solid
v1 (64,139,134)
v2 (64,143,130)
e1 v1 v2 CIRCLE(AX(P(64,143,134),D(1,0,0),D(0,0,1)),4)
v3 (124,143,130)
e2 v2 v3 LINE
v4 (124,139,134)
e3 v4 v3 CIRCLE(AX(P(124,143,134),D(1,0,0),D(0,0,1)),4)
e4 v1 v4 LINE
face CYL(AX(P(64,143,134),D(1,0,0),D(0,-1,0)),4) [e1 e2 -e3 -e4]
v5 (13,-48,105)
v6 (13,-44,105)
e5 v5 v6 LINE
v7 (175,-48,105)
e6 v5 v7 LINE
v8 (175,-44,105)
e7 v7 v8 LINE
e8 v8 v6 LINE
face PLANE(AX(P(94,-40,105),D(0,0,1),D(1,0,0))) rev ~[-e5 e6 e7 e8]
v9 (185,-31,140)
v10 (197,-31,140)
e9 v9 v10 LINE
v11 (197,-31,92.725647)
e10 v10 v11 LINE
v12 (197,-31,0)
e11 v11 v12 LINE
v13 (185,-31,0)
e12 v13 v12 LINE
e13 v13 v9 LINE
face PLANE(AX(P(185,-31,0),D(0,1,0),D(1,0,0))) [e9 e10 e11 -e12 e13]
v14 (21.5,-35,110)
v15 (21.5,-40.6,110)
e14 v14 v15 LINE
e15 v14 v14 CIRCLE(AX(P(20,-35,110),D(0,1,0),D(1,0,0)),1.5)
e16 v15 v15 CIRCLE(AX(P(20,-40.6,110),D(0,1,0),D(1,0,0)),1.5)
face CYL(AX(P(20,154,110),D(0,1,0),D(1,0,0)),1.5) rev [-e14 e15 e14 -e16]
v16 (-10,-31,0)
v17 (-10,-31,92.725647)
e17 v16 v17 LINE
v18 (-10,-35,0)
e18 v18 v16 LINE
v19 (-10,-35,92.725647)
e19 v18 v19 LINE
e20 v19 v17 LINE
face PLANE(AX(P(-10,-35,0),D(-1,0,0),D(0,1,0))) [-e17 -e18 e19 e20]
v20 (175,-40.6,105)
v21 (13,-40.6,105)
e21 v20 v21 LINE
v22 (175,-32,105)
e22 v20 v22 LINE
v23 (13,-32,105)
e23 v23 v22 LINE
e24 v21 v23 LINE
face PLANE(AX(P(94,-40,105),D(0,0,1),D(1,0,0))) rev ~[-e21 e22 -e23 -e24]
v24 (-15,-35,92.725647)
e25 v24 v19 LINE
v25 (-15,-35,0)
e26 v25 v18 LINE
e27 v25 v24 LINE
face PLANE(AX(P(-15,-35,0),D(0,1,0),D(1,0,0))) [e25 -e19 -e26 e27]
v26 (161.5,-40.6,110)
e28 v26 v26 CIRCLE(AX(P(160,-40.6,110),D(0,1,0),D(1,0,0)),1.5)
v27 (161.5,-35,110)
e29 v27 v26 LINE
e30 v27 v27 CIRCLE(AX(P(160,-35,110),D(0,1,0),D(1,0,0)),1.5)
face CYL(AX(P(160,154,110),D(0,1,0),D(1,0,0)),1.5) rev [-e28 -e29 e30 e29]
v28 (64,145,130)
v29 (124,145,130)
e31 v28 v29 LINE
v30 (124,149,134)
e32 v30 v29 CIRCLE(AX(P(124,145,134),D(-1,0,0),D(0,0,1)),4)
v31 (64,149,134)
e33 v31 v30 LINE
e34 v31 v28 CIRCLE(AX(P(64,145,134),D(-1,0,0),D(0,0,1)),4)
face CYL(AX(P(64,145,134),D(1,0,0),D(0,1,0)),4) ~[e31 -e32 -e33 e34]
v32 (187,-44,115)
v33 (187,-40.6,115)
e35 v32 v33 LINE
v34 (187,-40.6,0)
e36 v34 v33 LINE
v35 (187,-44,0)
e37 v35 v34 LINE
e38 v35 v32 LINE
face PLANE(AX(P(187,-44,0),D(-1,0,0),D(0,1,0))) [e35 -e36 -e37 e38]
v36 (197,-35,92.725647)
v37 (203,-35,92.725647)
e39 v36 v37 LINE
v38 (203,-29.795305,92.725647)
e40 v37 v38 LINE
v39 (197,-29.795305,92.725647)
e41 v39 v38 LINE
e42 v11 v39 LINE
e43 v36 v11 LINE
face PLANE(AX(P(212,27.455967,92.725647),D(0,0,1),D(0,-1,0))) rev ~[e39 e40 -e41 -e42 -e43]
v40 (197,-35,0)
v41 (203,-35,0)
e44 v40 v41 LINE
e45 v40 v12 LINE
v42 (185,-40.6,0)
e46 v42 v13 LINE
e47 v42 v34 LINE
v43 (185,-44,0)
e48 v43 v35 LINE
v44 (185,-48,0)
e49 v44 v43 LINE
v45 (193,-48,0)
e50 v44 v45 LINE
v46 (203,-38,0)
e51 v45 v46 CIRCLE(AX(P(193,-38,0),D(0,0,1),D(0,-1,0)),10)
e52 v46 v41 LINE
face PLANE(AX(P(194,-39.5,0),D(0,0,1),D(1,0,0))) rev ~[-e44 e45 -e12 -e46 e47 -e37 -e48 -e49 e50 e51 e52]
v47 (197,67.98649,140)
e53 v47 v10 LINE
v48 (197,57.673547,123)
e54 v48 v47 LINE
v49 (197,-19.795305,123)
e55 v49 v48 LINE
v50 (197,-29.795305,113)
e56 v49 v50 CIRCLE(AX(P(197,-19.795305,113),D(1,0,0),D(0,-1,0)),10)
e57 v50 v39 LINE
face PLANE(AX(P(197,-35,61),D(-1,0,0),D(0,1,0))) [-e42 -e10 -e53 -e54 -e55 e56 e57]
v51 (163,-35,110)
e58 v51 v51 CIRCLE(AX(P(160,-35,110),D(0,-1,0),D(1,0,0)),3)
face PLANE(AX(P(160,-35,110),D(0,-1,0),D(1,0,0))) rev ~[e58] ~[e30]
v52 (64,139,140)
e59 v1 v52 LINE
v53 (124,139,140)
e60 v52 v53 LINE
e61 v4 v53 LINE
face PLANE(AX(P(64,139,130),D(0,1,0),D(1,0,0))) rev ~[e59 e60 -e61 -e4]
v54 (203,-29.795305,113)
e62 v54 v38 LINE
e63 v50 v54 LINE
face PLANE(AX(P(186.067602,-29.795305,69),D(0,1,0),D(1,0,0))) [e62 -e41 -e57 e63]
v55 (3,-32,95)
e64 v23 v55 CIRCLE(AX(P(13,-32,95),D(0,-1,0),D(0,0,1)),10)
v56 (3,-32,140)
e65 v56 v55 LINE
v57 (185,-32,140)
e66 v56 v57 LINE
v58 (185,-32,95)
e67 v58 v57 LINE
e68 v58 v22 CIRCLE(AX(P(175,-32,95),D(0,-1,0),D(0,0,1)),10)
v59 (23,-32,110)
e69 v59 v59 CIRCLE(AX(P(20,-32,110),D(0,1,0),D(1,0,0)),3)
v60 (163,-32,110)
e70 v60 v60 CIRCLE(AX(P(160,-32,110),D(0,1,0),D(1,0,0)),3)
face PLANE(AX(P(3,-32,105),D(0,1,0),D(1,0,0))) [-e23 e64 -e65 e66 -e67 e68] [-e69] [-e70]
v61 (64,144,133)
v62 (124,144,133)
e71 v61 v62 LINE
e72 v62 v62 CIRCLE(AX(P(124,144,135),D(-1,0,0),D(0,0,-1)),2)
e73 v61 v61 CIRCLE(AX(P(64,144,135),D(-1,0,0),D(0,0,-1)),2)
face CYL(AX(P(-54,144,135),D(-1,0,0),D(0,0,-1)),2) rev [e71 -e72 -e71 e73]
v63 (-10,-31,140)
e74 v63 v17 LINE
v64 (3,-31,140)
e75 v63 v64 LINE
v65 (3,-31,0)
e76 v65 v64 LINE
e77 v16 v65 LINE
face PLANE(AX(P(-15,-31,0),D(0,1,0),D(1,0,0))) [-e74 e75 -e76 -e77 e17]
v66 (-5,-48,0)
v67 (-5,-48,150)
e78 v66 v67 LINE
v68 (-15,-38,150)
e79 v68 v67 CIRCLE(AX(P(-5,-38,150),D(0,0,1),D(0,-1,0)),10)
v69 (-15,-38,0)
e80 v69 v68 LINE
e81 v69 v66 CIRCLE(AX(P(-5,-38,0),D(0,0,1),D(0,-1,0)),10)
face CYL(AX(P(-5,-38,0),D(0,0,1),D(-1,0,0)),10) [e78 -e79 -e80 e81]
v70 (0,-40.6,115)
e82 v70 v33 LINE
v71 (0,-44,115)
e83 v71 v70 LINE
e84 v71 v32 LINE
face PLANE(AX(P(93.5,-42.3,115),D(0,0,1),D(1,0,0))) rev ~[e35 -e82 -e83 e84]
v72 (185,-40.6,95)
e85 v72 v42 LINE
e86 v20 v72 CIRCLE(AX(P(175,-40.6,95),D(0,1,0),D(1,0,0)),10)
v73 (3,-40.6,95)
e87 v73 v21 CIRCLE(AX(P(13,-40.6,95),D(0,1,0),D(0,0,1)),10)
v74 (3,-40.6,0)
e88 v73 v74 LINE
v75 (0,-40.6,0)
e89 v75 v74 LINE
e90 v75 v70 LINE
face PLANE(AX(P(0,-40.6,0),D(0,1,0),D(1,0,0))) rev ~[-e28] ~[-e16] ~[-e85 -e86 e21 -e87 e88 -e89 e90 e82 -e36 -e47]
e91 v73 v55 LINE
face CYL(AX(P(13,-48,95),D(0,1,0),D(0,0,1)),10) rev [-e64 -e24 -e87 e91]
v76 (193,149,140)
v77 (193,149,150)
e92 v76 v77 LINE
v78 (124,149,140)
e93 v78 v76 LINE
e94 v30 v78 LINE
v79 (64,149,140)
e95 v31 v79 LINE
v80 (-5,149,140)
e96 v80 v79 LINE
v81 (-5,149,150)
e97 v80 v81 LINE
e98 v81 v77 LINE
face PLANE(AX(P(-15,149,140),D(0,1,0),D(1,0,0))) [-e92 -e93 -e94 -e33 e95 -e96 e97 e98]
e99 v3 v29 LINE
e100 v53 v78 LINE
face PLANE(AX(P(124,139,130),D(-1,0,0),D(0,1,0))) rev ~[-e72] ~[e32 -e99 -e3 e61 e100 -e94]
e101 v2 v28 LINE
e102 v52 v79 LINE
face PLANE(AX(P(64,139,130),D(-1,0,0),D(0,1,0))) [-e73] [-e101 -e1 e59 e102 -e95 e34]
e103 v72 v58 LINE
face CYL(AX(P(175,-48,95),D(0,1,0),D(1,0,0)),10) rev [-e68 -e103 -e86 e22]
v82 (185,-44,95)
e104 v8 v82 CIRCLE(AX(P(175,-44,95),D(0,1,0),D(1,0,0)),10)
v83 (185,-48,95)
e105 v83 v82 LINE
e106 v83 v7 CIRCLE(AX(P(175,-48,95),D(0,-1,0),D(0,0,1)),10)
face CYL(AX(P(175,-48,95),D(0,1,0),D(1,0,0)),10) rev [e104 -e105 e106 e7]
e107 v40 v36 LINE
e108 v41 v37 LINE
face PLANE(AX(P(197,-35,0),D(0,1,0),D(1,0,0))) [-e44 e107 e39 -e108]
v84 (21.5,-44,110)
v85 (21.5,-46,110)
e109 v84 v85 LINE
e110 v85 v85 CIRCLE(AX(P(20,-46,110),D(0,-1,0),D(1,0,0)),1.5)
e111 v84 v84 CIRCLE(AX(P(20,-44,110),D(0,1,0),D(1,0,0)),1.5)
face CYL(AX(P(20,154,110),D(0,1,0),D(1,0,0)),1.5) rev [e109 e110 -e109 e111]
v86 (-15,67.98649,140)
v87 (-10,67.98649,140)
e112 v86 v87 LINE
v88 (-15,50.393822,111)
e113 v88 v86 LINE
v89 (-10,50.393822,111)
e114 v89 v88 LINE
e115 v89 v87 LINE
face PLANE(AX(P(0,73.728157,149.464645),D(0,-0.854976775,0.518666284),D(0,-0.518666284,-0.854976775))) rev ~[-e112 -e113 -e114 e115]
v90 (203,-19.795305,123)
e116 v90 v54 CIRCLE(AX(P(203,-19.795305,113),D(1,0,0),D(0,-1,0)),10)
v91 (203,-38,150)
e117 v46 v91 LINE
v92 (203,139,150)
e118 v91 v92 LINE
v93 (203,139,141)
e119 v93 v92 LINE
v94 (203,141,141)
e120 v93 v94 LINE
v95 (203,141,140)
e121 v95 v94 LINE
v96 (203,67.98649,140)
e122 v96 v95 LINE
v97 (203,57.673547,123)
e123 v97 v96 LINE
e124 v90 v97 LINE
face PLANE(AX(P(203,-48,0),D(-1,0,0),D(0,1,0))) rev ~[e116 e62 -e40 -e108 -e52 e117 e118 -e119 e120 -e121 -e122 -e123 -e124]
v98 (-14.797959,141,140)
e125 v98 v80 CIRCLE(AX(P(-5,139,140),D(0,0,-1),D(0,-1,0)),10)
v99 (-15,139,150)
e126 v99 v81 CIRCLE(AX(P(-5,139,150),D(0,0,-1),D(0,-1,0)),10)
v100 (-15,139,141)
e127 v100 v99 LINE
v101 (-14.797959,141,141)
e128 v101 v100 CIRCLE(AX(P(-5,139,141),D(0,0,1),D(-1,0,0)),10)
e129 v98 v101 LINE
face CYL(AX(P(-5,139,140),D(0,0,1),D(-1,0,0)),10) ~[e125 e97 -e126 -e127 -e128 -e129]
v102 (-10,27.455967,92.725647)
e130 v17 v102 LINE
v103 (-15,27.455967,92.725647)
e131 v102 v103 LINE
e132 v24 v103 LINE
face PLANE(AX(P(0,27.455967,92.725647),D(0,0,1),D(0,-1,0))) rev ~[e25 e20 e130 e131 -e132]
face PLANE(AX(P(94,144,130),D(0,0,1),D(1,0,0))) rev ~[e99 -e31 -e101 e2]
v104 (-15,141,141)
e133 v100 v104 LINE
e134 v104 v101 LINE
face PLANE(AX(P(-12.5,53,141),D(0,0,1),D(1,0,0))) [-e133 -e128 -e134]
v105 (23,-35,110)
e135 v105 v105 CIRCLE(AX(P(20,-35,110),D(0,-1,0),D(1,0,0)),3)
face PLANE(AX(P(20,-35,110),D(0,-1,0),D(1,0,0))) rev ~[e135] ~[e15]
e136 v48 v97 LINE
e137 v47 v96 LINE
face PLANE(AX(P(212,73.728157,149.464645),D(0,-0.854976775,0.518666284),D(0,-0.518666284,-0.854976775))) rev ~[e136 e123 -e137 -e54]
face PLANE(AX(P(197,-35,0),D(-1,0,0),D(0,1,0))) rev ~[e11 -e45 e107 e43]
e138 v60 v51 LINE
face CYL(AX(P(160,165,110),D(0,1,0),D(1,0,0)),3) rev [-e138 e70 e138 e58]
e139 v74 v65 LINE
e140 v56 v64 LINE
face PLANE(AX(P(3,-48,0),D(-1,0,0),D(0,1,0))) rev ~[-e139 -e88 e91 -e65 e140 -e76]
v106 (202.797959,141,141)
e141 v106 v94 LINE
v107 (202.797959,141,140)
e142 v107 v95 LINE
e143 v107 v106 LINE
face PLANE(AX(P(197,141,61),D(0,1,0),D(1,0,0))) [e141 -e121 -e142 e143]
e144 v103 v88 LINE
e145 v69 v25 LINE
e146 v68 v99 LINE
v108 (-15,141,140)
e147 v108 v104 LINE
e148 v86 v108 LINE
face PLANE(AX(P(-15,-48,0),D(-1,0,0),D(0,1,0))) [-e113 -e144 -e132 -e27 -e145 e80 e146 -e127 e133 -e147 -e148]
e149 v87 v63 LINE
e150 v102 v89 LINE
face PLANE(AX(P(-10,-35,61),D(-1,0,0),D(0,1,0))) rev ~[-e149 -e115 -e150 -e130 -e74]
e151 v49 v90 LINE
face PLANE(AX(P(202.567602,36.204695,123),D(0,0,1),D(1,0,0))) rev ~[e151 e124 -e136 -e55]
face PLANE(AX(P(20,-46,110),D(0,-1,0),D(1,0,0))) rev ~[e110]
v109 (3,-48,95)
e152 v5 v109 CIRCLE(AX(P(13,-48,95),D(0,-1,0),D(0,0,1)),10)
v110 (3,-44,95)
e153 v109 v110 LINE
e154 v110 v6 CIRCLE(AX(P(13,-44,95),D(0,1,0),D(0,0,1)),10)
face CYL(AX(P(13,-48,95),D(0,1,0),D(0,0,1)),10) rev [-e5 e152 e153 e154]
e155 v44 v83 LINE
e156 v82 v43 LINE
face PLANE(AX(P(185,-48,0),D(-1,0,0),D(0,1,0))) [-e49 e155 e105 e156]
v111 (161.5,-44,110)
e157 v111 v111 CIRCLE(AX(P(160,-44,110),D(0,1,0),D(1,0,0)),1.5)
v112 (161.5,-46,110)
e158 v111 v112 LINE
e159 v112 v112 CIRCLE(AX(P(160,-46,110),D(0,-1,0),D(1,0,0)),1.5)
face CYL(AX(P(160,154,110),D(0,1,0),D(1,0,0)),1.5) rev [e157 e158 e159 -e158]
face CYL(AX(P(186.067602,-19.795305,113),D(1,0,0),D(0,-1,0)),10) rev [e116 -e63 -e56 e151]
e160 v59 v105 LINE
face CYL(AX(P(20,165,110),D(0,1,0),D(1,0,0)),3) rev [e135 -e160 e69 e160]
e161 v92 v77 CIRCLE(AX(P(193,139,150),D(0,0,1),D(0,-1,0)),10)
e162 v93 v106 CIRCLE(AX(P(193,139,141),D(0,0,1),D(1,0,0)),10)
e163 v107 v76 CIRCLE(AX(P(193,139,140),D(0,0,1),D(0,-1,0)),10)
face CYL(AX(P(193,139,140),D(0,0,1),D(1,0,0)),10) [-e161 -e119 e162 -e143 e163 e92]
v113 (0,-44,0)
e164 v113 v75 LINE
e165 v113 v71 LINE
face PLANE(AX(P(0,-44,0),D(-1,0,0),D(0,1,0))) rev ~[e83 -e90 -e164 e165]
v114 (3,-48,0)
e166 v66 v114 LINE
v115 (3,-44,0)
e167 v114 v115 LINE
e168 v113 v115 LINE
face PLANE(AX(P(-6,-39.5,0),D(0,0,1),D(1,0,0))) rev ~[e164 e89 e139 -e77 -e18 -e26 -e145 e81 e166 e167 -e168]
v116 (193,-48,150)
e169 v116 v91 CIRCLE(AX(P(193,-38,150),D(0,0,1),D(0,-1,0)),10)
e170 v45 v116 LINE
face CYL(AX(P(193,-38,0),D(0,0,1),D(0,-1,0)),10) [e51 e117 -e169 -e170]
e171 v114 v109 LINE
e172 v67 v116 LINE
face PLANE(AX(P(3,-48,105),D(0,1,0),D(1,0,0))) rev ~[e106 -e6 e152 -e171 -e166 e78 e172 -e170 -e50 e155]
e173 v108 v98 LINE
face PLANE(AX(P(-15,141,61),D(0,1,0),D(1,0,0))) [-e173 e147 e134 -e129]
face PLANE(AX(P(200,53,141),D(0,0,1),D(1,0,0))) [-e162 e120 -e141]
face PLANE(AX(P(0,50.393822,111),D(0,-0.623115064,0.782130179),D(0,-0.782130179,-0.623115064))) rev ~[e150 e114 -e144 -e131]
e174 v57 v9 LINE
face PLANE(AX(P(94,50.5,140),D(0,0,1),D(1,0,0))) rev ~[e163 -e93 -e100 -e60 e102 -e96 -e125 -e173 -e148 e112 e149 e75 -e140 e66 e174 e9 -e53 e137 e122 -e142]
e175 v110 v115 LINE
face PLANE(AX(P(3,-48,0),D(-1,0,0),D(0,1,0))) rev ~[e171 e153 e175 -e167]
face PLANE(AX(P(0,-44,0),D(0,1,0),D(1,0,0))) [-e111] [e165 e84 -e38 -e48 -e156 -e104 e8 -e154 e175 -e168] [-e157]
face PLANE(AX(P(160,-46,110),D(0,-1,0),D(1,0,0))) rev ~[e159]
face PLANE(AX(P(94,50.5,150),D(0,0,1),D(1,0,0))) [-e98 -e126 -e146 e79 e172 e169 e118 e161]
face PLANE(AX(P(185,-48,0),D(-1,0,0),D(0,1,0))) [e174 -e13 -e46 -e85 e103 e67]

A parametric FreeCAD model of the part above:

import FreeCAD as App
import Part
import Sketcher


def edges_at(feature, points):
    """Names of the edges that pass closest to the given points."""
    edges = feature.Shape.Edges
    near = lambda p: min(range(len(edges)), key=lambda i: edges[i].distToShape(Part.Vertex(*p))[0])
    return sorted({f"Edge{near(p) + 1}" for p in points})

doc = App.newDocument("Part")
body = doc.addObject("PartDesign::Body", "Body")

sketch1 = body.newObject("Sketcher::SketchObject", "Sketch")
sketch1.AttachmentSupport = (doc.getObject("XY_Plane"), [""])
sketch1.MapMode = "FlatFace"
sketch1.addGeometry([
    Part.LineSegment(App.Vector(0, -40.6, 0), App.Vector(0, -44, 0)),
    Part.LineSegment(App.Vector(0, -44, 0), App.Vector(187, -44, 0)),
    Part.LineSegment(App.Vector(187, -44, 0), App.Vector(187, -40.6, 0)),
    Part.LineSegment(App.Vector(187, -40.6, 0), App.Vector(0, -40.6, 0)),
], False)
sketch1.addConstraint([
    Sketcher.Constraint("Coincident", 0, 2, 1, 1),
    Sketcher.Constraint("Coincident", 1, 2, 2, 1),
    Sketcher.Constraint("Coincident", 2, 2, 3, 1),
    Sketcher.Constraint("Coincident", 3, 2, 0, 1),
    Sketcher.Constraint("Vertical", 0),
    Sketcher.Constraint("Horizontal", 1),
    Sketcher.Constraint("Vertical", 2),
    Sketcher.Constraint("Horizontal", 3),
    Sketcher.Constraint("PointOnObject", 0, 2, -2),
    Sketcher.Constraint("DistanceX", 1, 1, 1, 2, 187.0),
    Sketcher.Constraint("DistanceY", 0, 2, 0, 1, 3.4),
    Sketcher.Constraint("DistanceY", 0, 2, -1, 1, 44.0),
])
pad1 = body.newObject("PartDesign::Pad", "Pad")
pad1.Profile = sketch1
pad1.Length = 115
body2 = doc.addObject("PartDesign::Body", "Body001")

sketch2 = body2.newObject("Sketcher::SketchObject", "Sketch001")
sketch2.AttachmentSupport = (doc.getObject("XY_Plane001"), [""])
sketch2.MapMode = "FlatFace"
sketch2.addGeometry(Part.Circle(App.Vector(0, 0, 0), App.Vector(0, 0, 1), 3), False)
sketch2.addConstraint([
    Sketcher.Constraint("Coincident", 0, 3, -1, 1),
    Sketcher.Constraint("Diameter", 0, 6.0),
])
pad2 = body2.newObject("PartDesign::Pad", "Pad001")
pad2.Profile = sketch2
pad2.Length = 200
body3 = doc.addObject("PartDesign::Body", "Body002")
doc.recompute()

body2.Placement = App.Placement(App.Vector(0, 0, 0), App.Rotation(App.Vector(1, 0, 0), 90))
boolean = body3.newObject("PartDesign::Boolean", "Boolean")
boolean.Type = "Fuse"
boolean.addObjects([body2])
body4 = doc.addObject("PartDesign::Body", "Body003")
doc.recompute()

body3.Placement = App.Placement(App.Vector(20, 165, 110), App.Rotation(App.Vector(0, 0, 1), 0))
boolean2 = body4.newObject("PartDesign::Boolean", "Boolean001")
boolean2.Type = "Fuse"
boolean2.addObjects([body3])
body5 = doc.addObject("PartDesign::Body", "Body004")

sketch3 = body5.newObject("Sketcher::SketchObject", "Sketch002")
sketch3.AttachmentSupport = (doc.getObject("XY_Plane004"), [""])
sketch3.MapMode = "FlatFace"
sketch3.addGeometry(Part.Circle(App.Vector(0, 0, 0), App.Vector(0, 0, 1), 3), False)
sketch3.addConstraint([
    Sketcher.Constraint("Coincident", 0, 3, -1, 1),
    Sketcher.Constraint("Diameter", 0, 6.0),
])
pad3 = body5.newObject("PartDesign::Pad", "Pad002")
pad3.Profile = sketch3
pad3.Length = 200
body6 = doc.addObject("PartDesign::Body", "Body005")
doc.recompute()

body5.Placement = App.Placement(App.Vector(0, 0, 0), App.Rotation(App.Vector(1, 0, 0), 90))
boolean3 = body6.newObject("PartDesign::Boolean", "Boolean002")
boolean3.Type = "Fuse"
boolean3.addObjects([body5])
body7 = doc.addObject("PartDesign::Body", "Body006")
doc.recompute()

body6.Placement = App.Placement(App.Vector(160, 165, 110), App.Rotation(App.Vector(0, 0, 1), 0))
boolean4 = body7.newObject("PartDesign::Boolean", "Boolean003")
boolean4.Type = "Fuse"
boolean4.addObjects([body6])
body8 = doc.addObject("PartDesign::Body", "Body007")

sketch4 = body8.newObject("Sketcher::SketchObject", "Sketch003")
sketch4.AttachmentSupport = (doc.getObject("XY_Plane007"), [""])
sketch4.MapMode = "FlatFace"
sketch4.addGeometry(Part.Circle(App.Vector(0, 0, 0), App.Vector(0, 0, 1), 1.5), False)
sketch4.addConstraint([
    Sketcher.Constraint("Coincident", 0, 3, -1, 1),
    Sketcher.Constraint("Diameter", 0, 3.0),
])
pad4 = body8.newObject("PartDesign::Pad", "Pad003")
pad4.Profile = sketch4
pad4.Length = 200
body9 = doc.addObject("PartDesign::Body", "Body008")
doc.recompute()

body8.Placement = App.Placement(App.Vector(0, 0, 0), App.Rotation(App.Vector(1, 0, 0), 90))
boolean5 = body9.newObject("PartDesign::Boolean", "Boolean004")
boolean5.Type = "Fuse"
boolean5.addObjects([body8])
body10 = doc.addObject("PartDesign::Body", "Body009")
doc.recompute()

body9.Placement = App.Placement(App.Vector(160, 154, 110), App.Rotation(App.Vector(0, 0, 1), 0))
boolean6 = body10.newObject("PartDesign::Boolean", "Boolean005")
boolean6.Type = "Fuse"
boolean6.addObjects([body9])
body11 = doc.addObject("PartDesign::Body", "Body010")

sketch5 = body11.newObject("Sketcher::SketchObject", "Sketch004")
sketch5.AttachmentSupport = (doc.getObject("XY_Plane010"), [""])
sketch5.MapMode = "FlatFace"
sketch5.addGeometry(Part.Circle(App.Vector(0, 0, 0), App.Vector(0, 0, 1), 1.5), False)
sketch5.addConstraint([
    Sketcher.Constraint("Coincident", 0, 3, -1, 1),
    Sketcher.Constraint("Diameter", 0, 3.0),
])
pad5 = body11.newObject("PartDesign::Pad", "Pad004")
pad5.Profile = sketch5
pad5.Length = 200
body12 = doc.addObject("PartDesign::Body", "Body011")
doc.recompute()

body11.Placement = App.Placement(App.Vector(0, 0, 0), App.Rotation(App.Vector(1, 0, 0), 90))
boolean7 = body12.newObject("PartDesign::Boolean", "Boolean006")
boolean7.Type = "Fuse"
boolean7.addObjects([body11])
body13 = doc.addObject("PartDesign::Body", "Body012")
doc.recompute()

body12.Placement = App.Placement(App.Vector(20, 154, 110), App.Rotation(App.Vector(0, 0, 1), 0))
boolean8 = body13.newObject("PartDesign::Boolean", "Boolean007")
boolean8.Type = "Fuse"
boolean8.addObjects([body12])
body14 = doc.addObject("PartDesign::Body", "Body013")

sketch6 = body14.newObject("Sketcher::SketchObject", "Sketch005")
sketch6.AttachmentSupport = (doc.getObject("YZ_Plane013"), [""])
sketch6.MapMode = "FlatFace"
sketch6.addGeometry([
    Part.LineSegment(App.Vector(175, 149, 0), App.Vector(74, 149, 0)),
    Part.LineSegment(App.Vector(74, 149, 0), App.Vector(50, 111, 0)),
    Part.LineSegment(App.Vector(50, 111, 0), App.Vector(27, 93, 0)),
    Part.LineSegment(App.Vector(27, 93, 0), App.Vector(-52, 93, 0)),
    Part.LineSegment(App.Vector(-52, 93, 0), App.Vector(-59, 172, 0)),
    Part.LineSegment(App.Vector(-59, 172, 0), App.Vector(154, 174, 0)),
    Part.LineSegment(App.Vector(154, 174, 0), App.Vector(175, 149, 0)),
], False)
sketch6.addConstraint([
    Sketcher.Constraint("Coincident", 0, 2, 1, 1),
    Sketcher.Constraint("Coincident", 1, 2, 2, 1),
    Sketcher.Constraint("Coincident", 2, 2, 3, 1),
    Sketcher.Constraint("Coincident", 3, 2, 4, 1),
    Sketcher.Constraint("Coincident", 4, 2, 5, 1),
    Sketcher.Constraint("Coincident", 5, 2, 6, 1),
    Sketcher.Constraint("Coincident", 6, 2, 0, 1),
    Sketcher.Constraint("Horizontal", 0),
    Sketcher.Constraint("Horizontal", 3),
    Sketcher.Constraint("DistanceY", -1, 1, 1, 2, 111.0),
    Sketcher.Constraint("DistanceY", -1, 1, 4, 2, 172.0),
    Sketcher.Constraint("DistanceX", 3, 2, 3, 1, 79.133991),
    Sketcher.Constraint("DistanceX", 4, 2, 0, 2, 132.989098),
    Sketcher.Constraint("Distance", 1, 44.989111),
    Sketcher.Constraint("Distance", 6, 31.969119),
    Sketcher.Constraint("DistanceX", 0, 2, 0, 1, 100.833092),
    Sketcher.Constraint("DistanceX", 4, 2, -1, 1, 59.260941),
    Sketcher.Constraint("DistanceX", -1, 1, 5, 2, 154.48703),
    Sketcher.Constraint("DistanceX", 2, 2, 0, 2, 46.27219),
    Sketcher.Constraint("DistanceX", 1, 2, 5, 2, 104.093208),
    Sketcher.Constraint("DistanceY", 2, 2, 5, 2, 81.61972),
])
pad6 = body14.newObject("PartDesign::Pad", "Pad005")
pad6.Profile = sketch6
pad6.Length = 55
pad6.Reversed = True
body15 = doc.addObject("PartDesign::Body", "Body014")

sketch7 = body15.newObject("Sketcher::SketchObject", "Sketch006")
sketch7.AttachmentSupport = (doc.getObject("XY_Plane014"), [""])
sketch7.MapMode = "FlatFace"
sketch7.addGeometry([
    Part.LineSegment(App.Vector(-15, 141, 0), App.Vector(-15, -35, 0)),
    Part.LineSegment(App.Vector(-15, -35, 0), App.Vector(-10, -35, 0)),
    Part.LineSegment(App.Vector(-10, -35, 0), App.Vector(-10, 141, 0)),
    Part.LineSegment(App.Vector(-10, 141, 0), App.Vector(-15, 141, 0)),
], False)
sketch7.addConstraint([
    Sketcher.Constraint("Coincident", 0, 2, 1, 1),
    Sketcher.Constraint("Coincident", 1, 2, 2, 1),
    Sketcher.Constraint("Coincident", 2, 2, 3, 1),
    Sketcher.Constraint("Coincident", 3, 2, 0, 1),
    Sketcher.Constraint("Vertical", 0),
    Sketcher.Constraint("Horizontal", 1),
    Sketcher.Constraint("Vertical", 2),
    Sketcher.Constraint("Horizontal", 3),
    Sketcher.Constraint("DistanceX", 1, 1, 1, 2, 5.0),
    Sketcher.Constraint("DistanceY", 0, 2, 0, 1, 176.0),
    Sketcher.Constraint("DistanceX", 0, 2, -1, 1, 15.0),
    Sketcher.Constraint("DistanceY", 0, 2, -1, 1, 35.0),
])
pad7 = body15.newObject("PartDesign::Pad", "Pad006")
pad7.Profile = sketch7
pad7.Length = 140
doc.recompute()

boolean9 = body15.newObject("PartDesign::Boolean", "Boolean008")
boolean9.Type = "Cut"
boolean9.addObjects([body14])
body16 = doc.addObject("PartDesign::Body", "Body015")

sketch8 = body16.newObject("Sketcher::SketchObject", "Sketch007")
sketch8.AttachmentSupport = (doc.getObject("YZ_Plane015"), [""])
sketch8.MapMode = "FlatFace"
sketch8.addGeometry([
    Part.LineSegment(App.Vector(175, 149, 0), App.Vector(74, 149, 0)),
    Part.LineSegment(App.Vector(74, 149, 0), App.Vector(50, 111, 0)),
    Part.LineSegment(App.Vector(50, 111, 0), App.Vector(27, 93, 0)),
    Part.LineSegment(App.Vector(27, 93, 0), App.Vector(-52, 93, 0)),
    Part.LineSegment(App.Vector(-52, 93, 0), App.Vector(-59, 172, 0)),
    Part.LineSegment(App.Vector(-59, 172, 0), App.Vector(154, 174, 0)),
    Part.LineSegment(App.Vector(154, 174, 0), App.Vector(175, 149, 0)),
], False)
sketch8.addConstraint([
    Sketcher.Constraint("Coincident", 0, 2, 1, 1),
    Sketcher.Constraint("Coincident", 1, 2, 2, 1),
    Sketcher.Constraint("Coincident", 2, 2, 3, 1),
    Sketcher.Constraint("Coincident", 3, 2, 4, 1),
    Sketcher.Constraint("Coincident", 4, 2, 5, 1),
    Sketcher.Constraint("Coincident", 5, 2, 6, 1),
    Sketcher.Constraint("Coincident", 6, 2, 0, 1),
    Sketcher.Constraint("Horizontal", 0),
    Sketcher.Constraint("Horizontal", 3),
    Sketcher.Constraint("DistanceY", -1, 1, 1, 2, 111.0),
    Sketcher.Constraint("DistanceY", -1, 1, 4, 2, 172.0),
    Sketcher.Constraint("DistanceX", 3, 2, 3, 1, 79.133991),
    Sketcher.Constraint("DistanceX", 4, 2, 0, 2, 132.989098),
    Sketcher.Constraint("Distance", 1, 44.989111),
    Sketcher.Constraint("Distance", 6, 31.969119),
    Sketcher.Constraint("DistanceX", 0, 2, 0, 1, 100.833092),
    Sketcher.Constraint("DistanceX", 4, 2, -1, 1, 59.260941),
    Sketcher.Constraint("DistanceX", -1, 1, 5, 2, 154.48703),
    Sketcher.Constraint("DistanceX", 2, 2, 0, 2, 46.27219),
    Sketcher.Constraint("DistanceX", 1, 2, 5, 2, 104.093208),
    Sketcher.Constraint("DistanceY", 2, 2, 5, 2, 81.61972),
])
pad8 = body16.newObject("PartDesign::Pad", "Pad007")
pad8.Profile = sketch8
pad8.Length = 55
pad8.Reversed = True
body17 = doc.addObject("PartDesign::Body", "Body016")

sketch9 = body17.newObject("Sketcher::SketchObject", "Sketch008")
sketch9.AttachmentSupport = (doc.getObject("XY_Plane016"), [""])
sketch9.MapMode = "FlatFace"
sketch9.addGeometry([
    Part.LineSegment(App.Vector(-15, 141, 0), App.Vector(-15, -35, 0)),
    Part.LineSegment(App.Vector(-15, -35, 0), App.Vector(-9, -35, 0)),
    Part.LineSegment(App.Vector(-9, -35, 0), App.Vector(-9, 141, 0)),
    Part.LineSegment(App.Vector(-9, 141, 0), App.Vector(-15, 141, 0)),
], False)
sketch9.addConstraint([
    Sketcher.Constraint("Coincident", 0, 2, 1, 1),
    Sketcher.Constraint("Coincident", 1, 2, 2, 1),
    Sketcher.Constraint("Coincident", 2, 2, 3, 1),
    Sketcher.Constraint("Coincident", 3, 2, 0, 1),
    Sketcher.Constraint("Vertical", 0),
    Sketcher.Constraint("Horizontal", 1),
    Sketcher.Constraint("Vertical", 2),
    Sketcher.Constraint("Horizontal", 3),
    Sketcher.Constraint("DistanceX", 1, 1, 1, 2, 6.0),
    Sketcher.Constraint("DistanceY", 0, 2, 0, 1, 176.0),
    Sketcher.Constraint("DistanceX", 0, 2, -1, 1, 15.0),
    Sketcher.Constraint("DistanceY", 0, 2, -1, 1, 35.0),
])
pad9 = body17.newObject("PartDesign::Pad", "Pad008")
pad9.Profile = sketch9
pad9.Length = 140
doc.recompute()

boolean10 = body17.newObject("PartDesign::Boolean", "Boolean009")
boolean10.Type = "Cut"
boolean10.addObjects([body16])
body18 = doc.addObject("PartDesign::Body", "Body017")
doc.recompute()

body17.Placement = App.Placement(App.Vector(212, 0, 0), App.Rotation(App.Vector(0, 0, 1), 0))
boolean11 = body18.newObject("PartDesign::Boolean", "Boolean010")
boolean11.Type = "Fuse"
boolean11.addObjects([body17])
body19 = doc.addObject("PartDesign::Body", "Body018")

sketch10 = body19.newObject("Sketcher::SketchObject", "Sketch009")
sketch10.AttachmentSupport = (doc.getObject("XY_Plane018"), [""])
sketch10.MapMode = "FlatFace"
sketch10.addGeometry([
    Part.LineSegment(App.Vector(0, 132, 0), App.Vector(0, 0, 0)),
    Part.LineSegment(App.Vector(0, 0, 0), App.Vector(33, 0, 0)),
    Part.LineSegment(App.Vector(33, 0, 0), App.Vector(33, 132, 0)),
    Part.LineSegment(App.Vector(33, 132, 0), App.Vector(0, 132, 0)),
], False)
sketch10.addConstraint([
    Sketcher.Constraint("Coincident", 0, 2, 1, 1),
    Sketcher.Constraint("Coincident", 1, 2, 2, 1),
    Sketcher.Constraint("Coincident", 2, 2, 3, 1),
    Sketcher.Constraint("Coincident", 3, 2, 0, 1),
    Sketcher.Constraint("Vertical", 0),
    Sketcher.Constraint("Horizontal", 1),
    Sketcher.Constraint("Vertical", 2),
    Sketcher.Constraint("Horizontal", 3),
    Sketcher.Constraint("Coincident", 0, 2, -1, 1),
    Sketcher.Constraint("DistanceX", 1, 1, 1, 2, 33.0),
    Sketcher.Constraint("DistanceY", 0, 2, 0, 1, 132.0),
])
pad10 = body19.newObject("PartDesign::Pad", "Pad009")
pad10.Profile = sketch10
pad10.Length = 54
body20 = doc.addObject("PartDesign::Body", "Body019")
doc.recompute()

body19.Placement = App.Placement(App.Vector(188, -32, 69), App.Rotation(App.Vector(0, 0, 1), 3))
boolean12 = body20.newObject("PartDesign::Boolean", "Boolean011")
boolean12.Type = "Fuse"
boolean12.addObjects([body19])
doc.recompute()

fillet = body20.newObject("PartDesign::Fillet", "Fillet")
fillet.Base = (boolean12, edges_at(boolean12, [
    (204.477, -31.136, 69),
    (204.477, -31.136, 123),
    (197.569, 100.683, 69),
    (197.569, 100.683, 123),
]))
fillet.Radius = 10
body21 = doc.addObject("PartDesign::Body", "Body020")
doc.recompute()

body20.Placement = App.Placement(App.Vector(0, 12, 0), App.Rotation(App.Vector(0, 0, 1), 357))
boolean13 = body21.newObject("PartDesign::Boolean", "Boolean012")
boolean13.Type = "Fuse"
boolean13.addObjects([body20])
body22 = doc.addObject("PartDesign::Body", "Body021")

sketch11 = body22.newObject("Sketcher::SketchObject", "Sketch010")
sketch11.AttachmentSupport = (doc.getObject("XY_Plane021"), [""])
sketch11.MapMode = "FlatFace"
sketch11.addGeometry([
    Part.LineSegment(App.Vector(185, -31, 0), App.Vector(185, -48, 0)),
    Part.LineSegment(App.Vector(185, -48, 0), App.Vector(203, -48, 0)),
    Part.LineSegment(App.Vector(203, -48, 0), App.Vector(203, -31, 0)),
    Part.LineSegment(App.Vector(203, -31, 0), App.Vector(185, -31, 0)),
], False)
sketch11.addConstraint([
    Sketcher.Constraint("Coincident", 0, 2, 1, 1),
    Sketcher.Constraint("Coincident", 1, 2, 2, 1),
    Sketcher.Constraint("Coincident", 2, 2, 3, 1),
    Sketcher.Constraint("Coincident", 3, 2, 0, 1),
    Sketcher.Constraint("Vertical", 0),
    Sketcher.Constraint("Horizontal", 1),
    Sketcher.Constraint("Vertical", 2),
    Sketcher.Constraint("Horizontal", 3),
    Sketcher.Constraint("DistanceX", 1, 1, 1, 2, 18.0),
    Sketcher.Constraint("DistanceY", 0, 2, 0, 1, 17.0),
    Sketcher.Constraint("DistanceX", -1, 1, 0, 2, 185.0),
    Sketcher.Constraint("DistanceY", 0, 2, -1, 1, 48.0),
])
pad11 = body22.newObject("PartDesign::Pad", "Pad010")
pad11.Profile = sketch11
pad11.Length = 140
doc.recompute()

fillet2 = body22.newObject("PartDesign::Fillet", "Fillet001")
fillet2.Base = (pad11, edges_at(pad11, [(203, -48, 70)]))
fillet2.Radius = 10
body23 = doc.addObject("PartDesign::Body", "Body022")

sketch12 = body23.newObject("Sketcher::SketchObject", "Sketch011")
sketch12.AttachmentSupport = (doc.getObject("XY_Plane022"), [""])
sketch12.MapMode = "FlatFace"
sketch12.addGeometry([
    Part.LineSegment(App.Vector(-15, -31, 0), App.Vector(-15, -48, 0)),
    Part.LineSegment(App.Vector(-15, -48, 0), App.Vector(3, -48, 0)),
    Part.LineSegment(App.Vector(3, -48, 0), App.Vector(3, -31, 0)),
    Part.LineSegment(App.Vector(3, -31, 0), App.Vector(-15, -31, 0)),
], False)
sketch12.addConstraint([
    Sketcher.Constraint("Coincident", 0, 2, 1, 1),
    Sketcher.Constraint("Coincident", 1, 2, 2, 1),
    Sketcher.Constraint("Coincident", 2, 2, 3, 1),
    Sketcher.Constraint("Coincident", 3, 2, 0, 1),
    Sketcher.Constraint("Vertical", 0),
    Sketcher.Constraint("Horizontal", 1),
    Sketcher.Constraint("Vertical", 2),
    Sketcher.Constraint("Horizontal", 3),
    Sketcher.Constraint("DistanceX", 1, 1, 1, 2, 18.0),
    Sketcher.Constraint("DistanceY", 0, 2, 0, 1, 17.0),
    Sketcher.Constraint("DistanceX", 0, 2, -1, 1, 15.0),
    Sketcher.Constraint("DistanceY", 0, 2, -1, 1, 48.0),
])
pad12 = body23.newObject("PartDesign::Pad", "Pad011")
pad12.Profile = sketch12
pad12.Length = 140
doc.recompute()

fillet3 = body23.newObject("PartDesign::Fillet", "Fillet002")
fillet3.Base = (pad12, edges_at(pad12, [(-15, -48, 70)]))
fillet3.Radius = 10
body24 = doc.addObject("PartDesign::Body", "Body023")

sketch13 = body24.newObject("Sketcher::SketchObject", "Sketch012")
sketch13.AttachmentSupport = (doc.getObject("XY_Plane023"), [""])
sketch13.MapMode = "FlatFace"
sketch13.AttachmentOffset = App.Placement(App.Vector(0, 0, 105), App.Rotation())
sketch13.addGeometry([
    Part.LineSegment(App.Vector(3, -32, 0), App.Vector(3, -48, 0)),
    Part.LineSegment(App.Vector(3, -48, 0), App.Vector(185, -48, 0)),
    Part.LineSegment(App.Vector(185, -48, 0), App.Vector(185, -32, 0)),
    Part.LineSegment(App.Vector(185, -32, 0), App.Vector(3, -32, 0)),
], False)
sketch13.addConstraint([
    Sketcher.Constraint("Coincident", 0, 2, 1, 1),
    Sketcher.Constraint("Coincident", 1, 2, 2, 1),
    Sketcher.Constraint("Coincident", 2, 2, 3, 1),
    Sketcher.Constraint("Coincident", 3, 2, 0, 1),
    Sketcher.Constraint("Vertical", 0),
    Sketcher.Constraint("Horizontal", 1),
    Sketcher.Constraint("Vertical", 2),
    Sketcher.Constraint("Horizontal", 3),
    Sketcher.Constraint("DistanceX", 1, 1, 1, 2, 182.0),
    Sketcher.Constraint("DistanceY", 0, 2, 0, 1, 16.0),
    Sketcher.Constraint("DistanceX", -1, 1, 0, 2, 3.0),
    Sketcher.Constraint("DistanceY", 0, 2, -1, 1, 48.0),
])
pad13 = body24.newObject("PartDesign::Pad", "Pad012")
pad13.Profile = sketch13
pad13.Length = 35
body25 = doc.addObject("PartDesign::Body", "Body024")

sketch14 = body25.newObject("Sketcher::SketchObject", "Sketch013")
sketch14.AttachmentSupport = (doc.getObject("XY_Plane024"), [""])
sketch14.MapMode = "FlatFace"
sketch14.AttachmentOffset = App.Placement(App.Vector(0, 0, 61), App.Rotation())
sketch14.addGeometry([
    Part.LineSegment(App.Vector(197, 141, 0), App.Vector(197, -35, 0)),
    Part.LineSegment(App.Vector(197, -35, 0), App.Vector(203, -35, 0)),
    Part.LineSegment(App.Vector(203, -35, 0), App.Vector(203, 141, 0)),
    Part.LineSegment(App.Vector(203, 141, 0), App.Vector(197, 141, 0)),
], False)
sketch14.addConstraint([
    Sketcher.Constraint("Coincident", 0, 2, 1, 1),
    Sketcher.Constraint("Coincident", 1, 2, 2, 1),
    Sketcher.Constraint("Coincident", 2, 2, 3, 1),
    Sketcher.Constraint("Coincident", 3, 2, 0, 1),
    Sketcher.Constraint("Vertical", 0),
    Sketcher.Constraint("Horizontal", 1),
    Sketcher.Constraint("Vertical", 2),
    Sketcher.Constraint("Horizontal", 3),
    Sketcher.Constraint("DistanceX", 1, 1, 1, 2, 6.0),
    Sketcher.Constraint("DistanceY", 0, 2, 0, 1, 176.0),
    Sketcher.Constraint("DistanceX", -1, 1, 0, 2, 197.0),
    Sketcher.Constraint("DistanceY", 0, 2, -1, 1, 35.0),
])
pad14 = body25.newObject("PartDesign::Pad", "Pad013")
pad14.Profile = sketch14
pad14.Length = 80
body26 = doc.addObject("PartDesign::Body", "Body025")

sketch15 = body26.newObject("Sketcher::SketchObject", "Sketch014")
sketch15.AttachmentSupport = (doc.getObject("XY_Plane025"), [""])
sketch15.MapMode = "FlatFace"
sketch15.AttachmentOffset = App.Placement(App.Vector(0, 0, 61), App.Rotation())
sketch15.addGeometry([
    Part.LineSegment(App.Vector(-15, 141, 0), App.Vector(-15, -35, 0)),
    Part.LineSegment(App.Vector(-15, -35, 0), App.Vector(-10, -35, 0)),
    Part.LineSegment(App.Vector(-10, -35, 0), App.Vector(-10, 141, 0)),
    Part.LineSegment(App.Vector(-10, 141, 0), App.Vector(-15, 141, 0)),
], False)
sketch15.addConstraint([
    Sketcher.Constraint("Coincident", 0, 2, 1, 1),
    Sketcher.Constraint("Coincident", 1, 2, 2, 1),
    Sketcher.Constraint("Coincident", 2, 2, 3, 1),
    Sketcher.Constraint("Coincident", 3, 2, 0, 1),
    Sketcher.Constraint("Vertical", 0),
    Sketcher.Constraint("Horizontal", 1),
    Sketcher.Constraint("Vertical", 2),
    Sketcher.Constraint("Horizontal", 3),
    Sketcher.Constraint("DistanceX", 1, 1, 1, 2, 5.0),
    Sketcher.Constraint("DistanceY", 0, 2, 0, 1, 176.0),
    Sketcher.Constraint("DistanceX", 0, 2, -1, 1, 15.0),
    Sketcher.Constraint("DistanceY", 0, 2, -1, 1, 35.0),
])
pad15 = body26.newObject("PartDesign::Pad", "Pad014")
pad15.Profile = sketch15
pad15.Length = 80
body27 = doc.addObject("PartDesign::Body", "Body026")

sketch16 = body27.newObject("Sketcher::SketchObject", "Sketch015")
sketch16.AttachmentSupport = (doc.getObject("XY_Plane026"), [""])
sketch16.MapMode = "FlatFace"
sketch16.AttachmentOffset = App.Placement(App.Vector(0, 0, 140), App.Rotation())
sketch16.addGeometry([
    Part.LineSegment(App.Vector(-15, 149, 0), App.Vector(-15, -48, 0)),
    Part.LineSegment(App.Vector(-15, -48, 0), App.Vector(203, -48, 0)),
    Part.LineSegment(App.Vector(203, -48, 0), App.Vector(203, 149, 0)),
    Part.LineSegment(App.Vector(203, 149, 0), App.Vector(-15, 149, 0)),
], False)
sketch16.addConstraint([
    Sketcher.Constraint("Coincident", 0, 2, 1, 1),
    Sketcher.Constraint("Coincident", 1, 2, 2, 1),
    Sketcher.Constraint("Coincident", 2, 2, 3, 1),
    Sketcher.Constraint("Coincident", 3, 2, 0, 1),
    Sketcher.Constraint("Vertical", 0),
    Sketcher.Constraint("Horizontal", 1),
    Sketcher.Constraint("Vertical", 2),
    Sketcher.Constraint("Horizontal", 3),
    Sketcher.Constraint("DistanceX", 1, 1, 1, 2, 218.0),
    Sketcher.Constraint("DistanceY", 0, 2, 0, 1, 197.0),
    Sketcher.Constraint("DistanceX", 0, 2, -1, 1, 15.0),
    Sketcher.Constraint("DistanceY", 0, 2, -1, 1, 48.0),
])
pad16 = body27.newObject("PartDesign::Pad", "Pad015")
pad16.Profile = sketch16
pad16.Length = 10
doc.recompute()

fillet4 = body27.newObject("PartDesign::Fillet", "Fillet003")
fillet4.Base = (pad16, edges_at(pad16, [(-15, 149, 145), (203, 149, 145)]))
fillet4.Radius = 10
doc.recompute()

fillet5 = body27.newObject("PartDesign::Fillet", "Fillet004")
fillet5.Base = (fillet4, edges_at(fillet4, [(-15, -48, 145), (203, -48, 145)]))
fillet5.Radius = 10
doc.recompute()

boolean14 = body27.newObject("PartDesign::Boolean", "Boolean013")
boolean14.Type = "Fuse"
boolean14.addObjects([body25])
doc.recompute()

boolean15 = body27.newObject("PartDesign::Boolean", "Boolean014")
boolean15.Type = "Fuse"
boolean15.addObjects([body26])
doc.recompute()

boolean16 = body27.newObject("PartDesign::Boolean", "Boolean015")
boolean16.Type = "Fuse"
boolean16.addObjects([body22])
doc.recompute()

boolean17 = body27.newObject("PartDesign::Boolean", "Boolean016")
boolean17.Type = "Fuse"
boolean17.addObjects([body23])
doc.recompute()

boolean18 = body27.newObject("PartDesign::Boolean", "Boolean017")
boolean18.Type = "Fuse"
boolean18.addObjects([body24])
doc.recompute()

boolean19 = body27.newObject("PartDesign::Boolean", "Boolean018")
boolean19.Type = "Cut"
boolean19.addObjects([body21])
doc.recompute()

boolean20 = body27.newObject("PartDesign::Boolean", "Boolean019")
boolean20.Type = "Cut"
boolean20.addObjects([body18])
doc.recompute()

boolean21 = body27.newObject("PartDesign::Boolean", "Boolean020")
boolean21.Type = "Cut"
boolean21.addObjects([body15])
body28 = doc.addObject("PartDesign::Body", "Body027")

sketch17 = body28.newObject("Sketcher::SketchObject", "Sketch016")
sketch17.AttachmentSupport = (doc.getObject("XY_Plane027"), [""])
sketch17.MapMode = "FlatFace"
sketch17.addGeometry(Part.Circle(App.Vector(0, 0, 0), App.Vector(0, 0, 1), 2), False)
sketch17.addConstraint([
    Sketcher.Constraint("Coincident", 0, 3, -1, 1),
    Sketcher.Constraint("Diameter", 0, 4.0),
])
pad17 = body28.newObject("PartDesign::Pad", "Pad016")
pad17.Profile = sketch17
pad17.Length = 300
body29 = doc.addObject("PartDesign::Body", "Body028")
doc.recompute()

body28.Placement = App.Placement(App.Vector(0, 0, 0), App.Rotation(App.Vector(0, 1, 0), 90))
boolean22 = body29.newObject("PartDesign::Boolean", "Boolean021")
boolean22.Type = "Fuse"
boolean22.addObjects([body28])
body30 = doc.addObject("PartDesign::Body", "Body029")
doc.recompute()

body29.Placement = App.Placement(App.Vector(-54, 144, 135), App.Rotation(App.Vector(0, 0, 1), 0))
boolean23 = body30.newObject("PartDesign::Boolean", "Boolean022")
boolean23.Type = "Fuse"
boolean23.addObjects([body29])
body31 = doc.addObject("PartDesign::Body", "Body030")

sketch18 = body31.newObject("Sketcher::SketchObject", "Sketch017")
sketch18.AttachmentSupport = (doc.getObject("XY_Plane030"), [""])
sketch18.MapMode = "FlatFace"
sketch18.AttachmentOffset = App.Placement(App.Vector(0, 0, 130), App.Rotation())
sketch18.addGeometry([
    Part.LineSegment(App.Vector(64, 149, 0), App.Vector(64, 139, 0)),
    Part.LineSegment(App.Vector(64, 139, 0), App.Vector(124, 139, 0)),
    Part.LineSegment(App.Vector(124, 139, 0), App.Vector(124, 149, 0)),
    Part.LineSegment(App.Vector(124, 149, 0), App.Vector(64, 149, 0)),
], False)
sketch18.addConstraint([
    Sketcher.Constraint("Coincident", 0, 2, 1, 1),
    Sketcher.Constraint("Coincident", 1, 2, 2, 1),
    Sketcher.Constraint("Coincident", 2, 2, 3, 1),
    Sketcher.Constraint("Coincident", 3, 2, 0, 1),
    Sketcher.Constraint("Vertical", 0),
    Sketcher.Constraint("Horizontal", 1),
    Sketcher.Constraint("Vertical", 2),
    Sketcher.Constraint("Horizontal", 3),
    Sketcher.Constraint("DistanceX", 1, 1, 1, 2, 60.0),
    Sketcher.Constraint("DistanceY", 0, 2, 0, 1, 10.0),
    Sketcher.Constraint("DistanceX", -1, 1, 0, 2, 64.0),
    Sketcher.Constraint("DistanceY", -1, 1, 0, 2, 139.0),
])
pad18 = body31.newObject("PartDesign::Pad", "Pad017")
pad18.Profile = sketch18
pad18.Length = 10
doc.recompute()

fillet6 = body31.newObject("PartDesign::Fillet", "Fillet005")
fillet6.Base = (pad18, edges_at(pad18, [(94, 139, 130), (94, 149, 130)]))
fillet6.Radius = 4
doc.recompute()

boolean24 = body31.newObject("PartDesign::Boolean", "Boolean023")
boolean24.Type = "Cut"
boolean24.addObjects([body30])
doc.recompute()

boolean25 = body31.newObject("PartDesign::Boolean", "Boolean024")
boolean25.Type = "Fuse"
boolean25.addObjects([body27])
doc.recompute()

fillet7 = body31.newObject("PartDesign::Fillet", "Fillet006")
fillet7.Base = (boolean25, edges_at(boolean25, [(3, -40, 105)]))
fillet7.Radius = 10
doc.recompute()

fillet8 = body31.newObject("PartDesign::Fillet", "Fillet007")
fillet8.Base = (fillet7, edges_at(fillet7, [(185, -40, 105)]))
fillet8.Radius = 10
doc.recompute()

boolean26 = body31.newObject("PartDesign::Boolean", "Boolean025")
boolean26.Type = "Cut"
boolean26.addObjects([body13])
doc.recompute()

boolean27 = body31.newObject("PartDesign::Boolean", "Boolean026")
boolean27.Type = "Cut"
boolean27.addObjects([body10])
doc.recompute()

boolean28 = body31.newObject("PartDesign::Boolean", "Boolean027")
boolean28.Type = "Cut"
boolean28.addObjects([body7])
doc.recompute()

boolean29 = body31.newObject("PartDesign::Boolean", "Boolean028")
boolean29.Type = "Cut"
boolean29.addObjects([body4])
doc.recompute()

boolean30 = body31.newObject("PartDesign::Boolean", "Boolean029")
boolean30.Type = "Cut"
boolean30.addObjects([body])

doc.recompute()
